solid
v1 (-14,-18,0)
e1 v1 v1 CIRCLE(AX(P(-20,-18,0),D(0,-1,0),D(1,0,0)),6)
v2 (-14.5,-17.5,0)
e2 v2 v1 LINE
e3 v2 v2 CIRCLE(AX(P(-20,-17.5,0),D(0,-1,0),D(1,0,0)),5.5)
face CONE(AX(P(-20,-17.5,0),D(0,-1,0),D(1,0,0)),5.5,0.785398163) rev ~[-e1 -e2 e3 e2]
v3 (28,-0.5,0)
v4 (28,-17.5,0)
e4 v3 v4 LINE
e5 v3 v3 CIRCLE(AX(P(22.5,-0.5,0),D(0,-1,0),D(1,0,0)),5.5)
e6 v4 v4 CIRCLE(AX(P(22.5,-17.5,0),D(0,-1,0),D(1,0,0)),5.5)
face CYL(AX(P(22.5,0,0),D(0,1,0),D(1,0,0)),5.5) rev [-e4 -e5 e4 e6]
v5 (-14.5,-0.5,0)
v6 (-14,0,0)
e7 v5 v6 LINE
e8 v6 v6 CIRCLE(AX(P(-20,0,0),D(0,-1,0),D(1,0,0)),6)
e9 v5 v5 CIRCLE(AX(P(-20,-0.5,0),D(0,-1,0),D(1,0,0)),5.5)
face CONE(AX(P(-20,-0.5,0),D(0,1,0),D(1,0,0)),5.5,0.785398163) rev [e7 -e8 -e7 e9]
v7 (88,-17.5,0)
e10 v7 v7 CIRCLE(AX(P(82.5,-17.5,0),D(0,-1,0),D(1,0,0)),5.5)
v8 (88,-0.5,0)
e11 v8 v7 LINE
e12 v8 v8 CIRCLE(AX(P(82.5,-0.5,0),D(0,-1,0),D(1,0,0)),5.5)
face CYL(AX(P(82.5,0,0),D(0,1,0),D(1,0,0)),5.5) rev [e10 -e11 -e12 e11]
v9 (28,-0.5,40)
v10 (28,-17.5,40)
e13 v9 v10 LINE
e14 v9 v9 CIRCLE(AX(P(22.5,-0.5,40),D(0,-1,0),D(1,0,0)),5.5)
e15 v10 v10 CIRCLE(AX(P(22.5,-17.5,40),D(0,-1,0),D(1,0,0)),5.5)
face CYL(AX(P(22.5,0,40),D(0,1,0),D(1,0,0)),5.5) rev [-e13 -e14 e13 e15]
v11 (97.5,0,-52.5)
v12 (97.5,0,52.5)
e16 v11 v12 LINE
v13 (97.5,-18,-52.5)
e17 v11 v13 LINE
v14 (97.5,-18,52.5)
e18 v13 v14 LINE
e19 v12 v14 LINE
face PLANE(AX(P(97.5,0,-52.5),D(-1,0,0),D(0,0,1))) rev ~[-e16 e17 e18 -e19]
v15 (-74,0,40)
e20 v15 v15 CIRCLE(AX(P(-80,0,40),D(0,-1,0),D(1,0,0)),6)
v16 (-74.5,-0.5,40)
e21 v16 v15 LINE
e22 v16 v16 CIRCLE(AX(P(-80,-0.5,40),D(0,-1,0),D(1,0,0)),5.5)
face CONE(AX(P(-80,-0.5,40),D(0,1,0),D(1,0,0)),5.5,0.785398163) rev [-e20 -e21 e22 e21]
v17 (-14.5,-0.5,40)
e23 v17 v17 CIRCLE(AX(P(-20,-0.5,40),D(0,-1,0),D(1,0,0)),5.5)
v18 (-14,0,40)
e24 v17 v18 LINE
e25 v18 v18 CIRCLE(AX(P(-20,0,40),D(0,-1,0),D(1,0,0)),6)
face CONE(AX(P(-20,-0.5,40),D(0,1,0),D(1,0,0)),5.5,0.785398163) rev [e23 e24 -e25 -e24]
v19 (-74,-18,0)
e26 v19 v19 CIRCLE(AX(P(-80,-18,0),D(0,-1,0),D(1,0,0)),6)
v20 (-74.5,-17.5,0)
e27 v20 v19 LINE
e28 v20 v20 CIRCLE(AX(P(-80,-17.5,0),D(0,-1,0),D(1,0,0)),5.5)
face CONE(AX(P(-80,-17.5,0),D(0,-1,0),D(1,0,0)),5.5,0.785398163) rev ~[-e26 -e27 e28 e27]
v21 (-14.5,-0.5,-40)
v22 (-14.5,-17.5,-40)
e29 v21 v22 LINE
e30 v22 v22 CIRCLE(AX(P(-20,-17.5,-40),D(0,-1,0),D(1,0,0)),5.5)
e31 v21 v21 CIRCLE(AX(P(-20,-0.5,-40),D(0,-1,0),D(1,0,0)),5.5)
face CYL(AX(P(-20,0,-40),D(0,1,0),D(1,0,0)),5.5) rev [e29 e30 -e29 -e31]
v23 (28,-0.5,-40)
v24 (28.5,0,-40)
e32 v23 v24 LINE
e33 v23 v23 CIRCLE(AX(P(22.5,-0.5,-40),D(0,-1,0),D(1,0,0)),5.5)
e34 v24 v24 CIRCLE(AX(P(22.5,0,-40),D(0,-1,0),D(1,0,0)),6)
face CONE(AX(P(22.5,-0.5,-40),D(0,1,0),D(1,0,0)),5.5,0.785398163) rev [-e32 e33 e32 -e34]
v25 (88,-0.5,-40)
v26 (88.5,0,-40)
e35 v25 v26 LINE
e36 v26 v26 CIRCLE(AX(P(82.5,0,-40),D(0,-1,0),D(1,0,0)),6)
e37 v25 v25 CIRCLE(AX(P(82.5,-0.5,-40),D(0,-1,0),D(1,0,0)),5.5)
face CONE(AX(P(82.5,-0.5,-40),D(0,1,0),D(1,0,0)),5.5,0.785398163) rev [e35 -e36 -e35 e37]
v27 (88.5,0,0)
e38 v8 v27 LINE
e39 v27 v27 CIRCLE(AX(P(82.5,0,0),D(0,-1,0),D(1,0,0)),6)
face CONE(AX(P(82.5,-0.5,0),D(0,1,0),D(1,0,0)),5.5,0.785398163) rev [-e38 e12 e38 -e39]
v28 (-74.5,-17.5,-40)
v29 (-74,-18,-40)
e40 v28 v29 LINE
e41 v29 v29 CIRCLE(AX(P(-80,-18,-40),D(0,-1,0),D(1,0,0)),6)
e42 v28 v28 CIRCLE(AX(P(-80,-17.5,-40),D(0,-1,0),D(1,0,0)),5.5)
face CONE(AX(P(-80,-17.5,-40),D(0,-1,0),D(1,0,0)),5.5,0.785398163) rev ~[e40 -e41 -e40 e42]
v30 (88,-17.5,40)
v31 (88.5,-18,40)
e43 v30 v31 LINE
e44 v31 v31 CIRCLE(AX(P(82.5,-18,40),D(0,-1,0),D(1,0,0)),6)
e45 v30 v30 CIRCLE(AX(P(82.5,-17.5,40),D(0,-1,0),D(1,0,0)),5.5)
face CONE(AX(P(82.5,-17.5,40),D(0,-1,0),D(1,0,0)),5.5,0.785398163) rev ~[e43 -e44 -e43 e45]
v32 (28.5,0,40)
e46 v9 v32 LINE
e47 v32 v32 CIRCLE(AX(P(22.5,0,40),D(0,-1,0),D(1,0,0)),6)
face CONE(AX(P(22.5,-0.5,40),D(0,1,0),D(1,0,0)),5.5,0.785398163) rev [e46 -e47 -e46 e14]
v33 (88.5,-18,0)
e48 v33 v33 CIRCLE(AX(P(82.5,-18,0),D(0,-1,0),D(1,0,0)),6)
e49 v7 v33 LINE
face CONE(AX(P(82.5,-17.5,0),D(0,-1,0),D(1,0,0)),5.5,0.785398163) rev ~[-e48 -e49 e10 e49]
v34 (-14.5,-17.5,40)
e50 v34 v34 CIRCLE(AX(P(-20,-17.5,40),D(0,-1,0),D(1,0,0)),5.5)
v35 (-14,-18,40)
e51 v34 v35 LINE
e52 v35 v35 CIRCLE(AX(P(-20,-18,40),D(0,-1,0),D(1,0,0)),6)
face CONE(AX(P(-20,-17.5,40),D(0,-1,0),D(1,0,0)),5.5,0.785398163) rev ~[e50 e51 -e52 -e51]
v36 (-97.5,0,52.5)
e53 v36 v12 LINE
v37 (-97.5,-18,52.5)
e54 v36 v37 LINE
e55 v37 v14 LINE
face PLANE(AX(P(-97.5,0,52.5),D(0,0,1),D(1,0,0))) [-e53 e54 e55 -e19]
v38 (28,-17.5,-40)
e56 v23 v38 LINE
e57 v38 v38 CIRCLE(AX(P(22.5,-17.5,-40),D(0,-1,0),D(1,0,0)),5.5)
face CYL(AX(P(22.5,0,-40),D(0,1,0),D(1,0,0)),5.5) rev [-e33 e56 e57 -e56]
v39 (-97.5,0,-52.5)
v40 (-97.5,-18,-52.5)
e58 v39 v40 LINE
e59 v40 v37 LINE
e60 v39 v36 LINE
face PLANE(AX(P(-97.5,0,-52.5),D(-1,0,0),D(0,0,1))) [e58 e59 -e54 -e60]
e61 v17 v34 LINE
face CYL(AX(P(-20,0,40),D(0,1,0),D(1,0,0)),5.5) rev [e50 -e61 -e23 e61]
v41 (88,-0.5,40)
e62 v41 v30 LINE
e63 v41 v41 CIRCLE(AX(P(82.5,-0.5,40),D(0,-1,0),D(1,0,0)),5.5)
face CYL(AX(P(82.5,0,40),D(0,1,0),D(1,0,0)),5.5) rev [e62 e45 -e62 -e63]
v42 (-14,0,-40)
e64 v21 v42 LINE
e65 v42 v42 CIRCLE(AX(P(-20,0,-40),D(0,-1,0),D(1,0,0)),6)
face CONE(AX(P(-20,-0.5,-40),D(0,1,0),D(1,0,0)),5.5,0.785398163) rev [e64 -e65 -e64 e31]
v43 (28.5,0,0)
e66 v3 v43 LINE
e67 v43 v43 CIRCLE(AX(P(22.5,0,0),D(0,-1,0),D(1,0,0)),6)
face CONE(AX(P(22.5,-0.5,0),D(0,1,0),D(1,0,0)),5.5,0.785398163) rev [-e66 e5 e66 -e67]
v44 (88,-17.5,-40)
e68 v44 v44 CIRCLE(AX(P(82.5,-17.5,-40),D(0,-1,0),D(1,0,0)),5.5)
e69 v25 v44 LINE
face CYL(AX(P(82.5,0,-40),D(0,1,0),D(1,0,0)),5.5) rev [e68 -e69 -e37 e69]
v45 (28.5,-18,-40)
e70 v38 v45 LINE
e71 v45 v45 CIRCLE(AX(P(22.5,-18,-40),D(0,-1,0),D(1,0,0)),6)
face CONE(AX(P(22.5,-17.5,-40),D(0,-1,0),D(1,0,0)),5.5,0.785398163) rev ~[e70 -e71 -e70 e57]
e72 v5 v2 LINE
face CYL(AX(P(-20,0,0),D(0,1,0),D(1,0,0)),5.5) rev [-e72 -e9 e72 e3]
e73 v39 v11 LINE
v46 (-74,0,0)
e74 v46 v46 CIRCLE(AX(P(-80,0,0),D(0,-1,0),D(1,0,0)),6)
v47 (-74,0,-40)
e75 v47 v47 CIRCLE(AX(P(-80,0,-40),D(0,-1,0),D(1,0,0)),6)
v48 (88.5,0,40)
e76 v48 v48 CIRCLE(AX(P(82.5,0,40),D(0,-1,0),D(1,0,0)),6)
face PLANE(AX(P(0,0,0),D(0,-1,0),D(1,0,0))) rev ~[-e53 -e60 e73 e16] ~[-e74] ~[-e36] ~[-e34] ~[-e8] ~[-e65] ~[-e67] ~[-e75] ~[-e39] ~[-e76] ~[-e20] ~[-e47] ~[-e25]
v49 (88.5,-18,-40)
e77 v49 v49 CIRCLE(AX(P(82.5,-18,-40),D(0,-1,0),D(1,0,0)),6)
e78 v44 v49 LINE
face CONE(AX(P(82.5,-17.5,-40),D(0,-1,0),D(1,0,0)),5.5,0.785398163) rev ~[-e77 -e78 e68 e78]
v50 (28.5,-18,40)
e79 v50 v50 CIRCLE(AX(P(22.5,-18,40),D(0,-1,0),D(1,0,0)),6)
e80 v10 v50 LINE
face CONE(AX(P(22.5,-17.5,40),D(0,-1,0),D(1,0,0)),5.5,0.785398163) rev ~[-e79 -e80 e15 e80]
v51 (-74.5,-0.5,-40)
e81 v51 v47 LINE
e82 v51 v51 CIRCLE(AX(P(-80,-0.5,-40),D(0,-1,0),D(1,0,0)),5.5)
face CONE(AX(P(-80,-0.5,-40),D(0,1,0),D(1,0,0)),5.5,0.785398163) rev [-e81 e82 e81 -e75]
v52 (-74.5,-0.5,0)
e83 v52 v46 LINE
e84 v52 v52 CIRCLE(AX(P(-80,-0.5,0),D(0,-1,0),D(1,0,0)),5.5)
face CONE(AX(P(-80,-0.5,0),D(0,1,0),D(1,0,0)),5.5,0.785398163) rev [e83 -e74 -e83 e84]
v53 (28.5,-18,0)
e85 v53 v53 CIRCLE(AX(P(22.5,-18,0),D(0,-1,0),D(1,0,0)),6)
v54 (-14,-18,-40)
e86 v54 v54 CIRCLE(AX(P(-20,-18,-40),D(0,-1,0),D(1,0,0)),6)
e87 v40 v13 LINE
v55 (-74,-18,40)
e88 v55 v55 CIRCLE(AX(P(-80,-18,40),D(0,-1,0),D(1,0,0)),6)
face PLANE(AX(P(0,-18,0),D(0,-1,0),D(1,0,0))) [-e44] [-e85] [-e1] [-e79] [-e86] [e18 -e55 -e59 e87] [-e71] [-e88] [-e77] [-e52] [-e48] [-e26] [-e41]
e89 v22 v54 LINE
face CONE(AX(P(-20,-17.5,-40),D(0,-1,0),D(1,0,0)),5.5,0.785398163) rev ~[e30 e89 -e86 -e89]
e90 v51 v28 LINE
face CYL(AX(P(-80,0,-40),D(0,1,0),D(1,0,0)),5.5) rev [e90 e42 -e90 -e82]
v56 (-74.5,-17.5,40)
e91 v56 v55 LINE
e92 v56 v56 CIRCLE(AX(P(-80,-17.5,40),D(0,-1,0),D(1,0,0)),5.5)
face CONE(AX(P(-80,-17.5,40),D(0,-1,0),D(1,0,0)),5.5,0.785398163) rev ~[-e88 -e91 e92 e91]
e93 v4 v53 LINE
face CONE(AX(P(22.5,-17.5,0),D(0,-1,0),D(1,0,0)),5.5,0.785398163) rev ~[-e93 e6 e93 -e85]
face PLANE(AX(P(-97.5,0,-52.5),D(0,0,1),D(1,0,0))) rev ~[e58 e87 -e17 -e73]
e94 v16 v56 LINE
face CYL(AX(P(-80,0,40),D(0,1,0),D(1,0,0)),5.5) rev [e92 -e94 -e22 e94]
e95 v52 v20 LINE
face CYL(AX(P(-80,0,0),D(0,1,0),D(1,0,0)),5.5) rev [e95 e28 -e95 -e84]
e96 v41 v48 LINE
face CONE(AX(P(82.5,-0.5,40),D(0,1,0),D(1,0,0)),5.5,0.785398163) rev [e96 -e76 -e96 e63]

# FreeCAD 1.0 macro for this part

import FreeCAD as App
import Part
import Sketcher


def edges_at(feature, points):
    """Names of the edges that pass closest to the given points."""
    edges = feature.Shape.Edges
    near = lambda p: min(range(len(edges)), key=lambda i: edges[i].distToShape(Part.Vertex(*p))[0])
    return sorted({f"Edge{near(p) + 1}" for p in points})


def add_polygon(sketch, points):
    """Adds a closed chain of lines whose ends are joined by coincident constraints."""
    first, n = sketch.GeometryCount, len(points)
    for a, b in zip(points, points[1:] + points[:1]):
        sketch.addGeometry(Part.LineSegment(App.Vector(*a, 0), App.Vector(*b, 0)), False)
    for i in range(n):
        sketch.addConstraint(Sketcher.Constraint("Coincident", first + i, 2, first + (i + 1) % n, 1))

doc = App.newDocument("Part")
params = doc.addObject("Spreadsheet::Sheet", "Params")
for row, (alias, value) in enumerate([
    ("sketch1_diameter", "11 mm"),
    ("sketch1_width", "195 mm"),
    ("sketch1_height", "105 mm"),
    ("pad1_length", "18 mm"),
    ("chamfer_size", "0.5 mm"),
], start=1):
    params.set(f"A{row}", alias)
    params.set(f"B{row}", "=" + value)
    params.setAlias(f"B{row}", alias)

body = doc.addObject("PartDesign::Body", "Body")

sketch1 = body.newObject("Sketcher::SketchObject", "Sketch")
sketch1.AttachmentSupport = (doc.getObject("XZ_Plane"), [""])
sketch1.MapMode = "FlatFace"
add_polygon(sketch1, [(-98, 52), (-98, -52), (98, -52), (98, 52)])
sketch1.addGeometry(Part.Circle(App.Vector(-80, -40, 0), App.Vector(0, 0, 1), 6), False)
sketch1.addGeometry(Part.Circle(App.Vector(-20, -40, 0), App.Vector(0, 0, 1), 6), False)
sketch1.addGeometry(Part.Circle(App.Vector(22, -40, 0), App.Vector(0, 0, 1), 6), False)
sketch1.addGeometry(Part.Circle(App.Vector(82, -40, 0), App.Vector(0, 0, 1), 6), False)
sketch1.addGeometry(Part.Circle(App.Vector(-80, 0, 0), App.Vector(0, 0, 1), 6), False)
sketch1.addGeometry(Part.Circle(App.Vector(-20, 0, 0), App.Vector(0, 0, 1), 6), False)
sketch1.addGeometry(Part.Circle(App.Vector(-80, 40, 0), App.Vector(0, 0, 1), 6), False)
sketch1.addGeometry(Part.Circle(App.Vector(-20, 40, 0), App.Vector(0, 0, 1), 6), False)
sketch1.addGeometry(Part.Circle(App.Vector(22, 0, 0), App.Vector(0, 0, 1), 6), False)
sketch1.addGeometry(Part.Circle(App.Vector(82, 0, 0), App.Vector(0, 0, 1), 6), False)
sketch1.addGeometry(Part.Circle(App.Vector(22, 40, 0), App.Vector(0, 0, 1), 6), False)
sketch1.addGeometry(Part.Circle(App.Vector(82, 40, 0), App.Vector(0, 0, 1), 6), False)
sketch1.addConstraint([
    Sketcher.Constraint("Vertical", 0),
    Sketcher.Constraint("Horizontal", 1),
    Sketcher.Constraint("Vertical", 2),
    Sketcher.Constraint("Horizontal", 3),
    Sketcher.Constraint("Equal", 4, 5),
    Sketcher.Constraint("Equal", 5, 6),
    Sketcher.Constraint("Equal", 6, 7),
    Sketcher.Constraint("Equal", 7, 8),
    Sketcher.Constraint("Equal", 8, 9),
    Sketcher.Constraint("Equal", 9, 10),
    Sketcher.Constraint("Equal", 10, 11),
    Sketcher.Constraint("Equal", 11, 12),
    Sketcher.Constraint("Equal", 12, 13),
    Sketcher.Constraint("Equal", 13, 14),
    Sketcher.Constraint("Equal", 14, 15),
    Sketcher.Constraint("Symmetric", 0, 2, 2, 2, -1, 1),
    Sketcher.Constraint("Symmetric", 4, 3, 10, 3, -1),
    Sketcher.Constraint("Symmetric", 5, 3, 11, 3, -1),
    Sketcher.Constraint("Symmetric", 6, 3, 14, 3, -1),
    Sketcher.Constraint("Symmetric", 7, 3, 15, 3, -1),
    Sketcher.Constraint("PointOnObject", 8, 3, -1),
    Sketcher.Constraint("PointOnObject", 9, 3, -1),
    Sketcher.Constraint("PointOnObject", 12, 3, -1),
    Sketcher.Constraint("PointOnObject", 13, 3, -1),
    Sketcher.Constraint("Horizontal", 4, 3, 5, 3),
    Sketcher.Constraint("Horizontal", 5, 3, 6, 3),
    Sketcher.Constraint("Horizontal", 6, 3, 7, 3),
    Sketcher.Constraint("Vertical", 4, 3, 8, 3),
    Sketcher.Constraint("Vertical", 5, 3, 9, 3),
    Sketcher.Constraint("Vertical", 6, 3, 12, 3),
    Sketcher.Constraint("Vertical", 7, 3, 13, 3),
    Sketcher.Constraint("Diameter", 4, 11.0),
    Sketcher.Constraint("DistanceX", 1, 1, 1, 2, 195.0),
    Sketcher.Constraint("DistanceY", 0, 2, 0, 1, 105.0),
    Sketcher.Constraint("DistanceX", 4, 3, -1, 1, 80.0),
    Sketcher.Constraint("DistanceY", 4, 3, -1, 1, 40.0),
    Sketcher.Constraint("DistanceX", 5, 3, -1, 1, 20.0),
    Sketcher.Constraint("DistanceX", 6, 3, 7, 3, 60.0),
    Sketcher.Constraint("DistanceX", 7, 3, 1, 2, 15.0),
])
sketch1.setExpression("Constraints[35]", "Params.sketch1_diameter")
sketch1.setExpression("Constraints[36]", "Params.sketch1_width")
sketch1.setExpression("Constraints[37]", "Params.sketch1_height")
pad1 = body.newObject("PartDesign::Pad", "Pad")
pad1.Profile = sketch1
pad1.setExpression("Length", "Params.pad1_length")
doc.recompute()

chamfer = body.newObject("PartDesign::Chamfer", "Chamfer")
chamfer.Base = (pad1, edges_at(pad1, [
    (-74.5, -9, 40),
    (-85.5, 0, 40),
    (-85.5, -18, 40),
    (-74.5, -9, 0),
    (-85.5, 0, 0),
    (-85.5, -18, 0),
    (-74.5, -9, -40),
    (-85.5, 0, -40),
    (-85.5, -18, -40),
    (-14.5, -9, 40),
    (-25.5, 0, 40),
    (-25.5, -18, 40),
    (-14.5, -9, 0),
    (-25.5, 0, 0),
    (-25.5, -18, 0),
    (-14.5, -9, -40),
    (-25.5, 0, -40),
    (-25.5, -18, -40),
    (28, -9, 40),
    (17, 0, 40),
    (17, -18, 40),
    (28, -9, 0),
    (17, 0, 0),
    (17, -18, 0),
    (28, -9, -40),
    (17, 0, -40),
    (17, -18, -40),
    (88, -9, 40),
    (77, 0, 40),
    (77, -18, 40),
    (88, -9, 0),
    (77, 0, 0),
    (77, -18, 0),
    (88, -9, -40),
    (77, 0, -40),
    (77, -18, -40),
]))
chamfer.setExpression("Size", "Params.chamfer_size")

doc.recompute()
